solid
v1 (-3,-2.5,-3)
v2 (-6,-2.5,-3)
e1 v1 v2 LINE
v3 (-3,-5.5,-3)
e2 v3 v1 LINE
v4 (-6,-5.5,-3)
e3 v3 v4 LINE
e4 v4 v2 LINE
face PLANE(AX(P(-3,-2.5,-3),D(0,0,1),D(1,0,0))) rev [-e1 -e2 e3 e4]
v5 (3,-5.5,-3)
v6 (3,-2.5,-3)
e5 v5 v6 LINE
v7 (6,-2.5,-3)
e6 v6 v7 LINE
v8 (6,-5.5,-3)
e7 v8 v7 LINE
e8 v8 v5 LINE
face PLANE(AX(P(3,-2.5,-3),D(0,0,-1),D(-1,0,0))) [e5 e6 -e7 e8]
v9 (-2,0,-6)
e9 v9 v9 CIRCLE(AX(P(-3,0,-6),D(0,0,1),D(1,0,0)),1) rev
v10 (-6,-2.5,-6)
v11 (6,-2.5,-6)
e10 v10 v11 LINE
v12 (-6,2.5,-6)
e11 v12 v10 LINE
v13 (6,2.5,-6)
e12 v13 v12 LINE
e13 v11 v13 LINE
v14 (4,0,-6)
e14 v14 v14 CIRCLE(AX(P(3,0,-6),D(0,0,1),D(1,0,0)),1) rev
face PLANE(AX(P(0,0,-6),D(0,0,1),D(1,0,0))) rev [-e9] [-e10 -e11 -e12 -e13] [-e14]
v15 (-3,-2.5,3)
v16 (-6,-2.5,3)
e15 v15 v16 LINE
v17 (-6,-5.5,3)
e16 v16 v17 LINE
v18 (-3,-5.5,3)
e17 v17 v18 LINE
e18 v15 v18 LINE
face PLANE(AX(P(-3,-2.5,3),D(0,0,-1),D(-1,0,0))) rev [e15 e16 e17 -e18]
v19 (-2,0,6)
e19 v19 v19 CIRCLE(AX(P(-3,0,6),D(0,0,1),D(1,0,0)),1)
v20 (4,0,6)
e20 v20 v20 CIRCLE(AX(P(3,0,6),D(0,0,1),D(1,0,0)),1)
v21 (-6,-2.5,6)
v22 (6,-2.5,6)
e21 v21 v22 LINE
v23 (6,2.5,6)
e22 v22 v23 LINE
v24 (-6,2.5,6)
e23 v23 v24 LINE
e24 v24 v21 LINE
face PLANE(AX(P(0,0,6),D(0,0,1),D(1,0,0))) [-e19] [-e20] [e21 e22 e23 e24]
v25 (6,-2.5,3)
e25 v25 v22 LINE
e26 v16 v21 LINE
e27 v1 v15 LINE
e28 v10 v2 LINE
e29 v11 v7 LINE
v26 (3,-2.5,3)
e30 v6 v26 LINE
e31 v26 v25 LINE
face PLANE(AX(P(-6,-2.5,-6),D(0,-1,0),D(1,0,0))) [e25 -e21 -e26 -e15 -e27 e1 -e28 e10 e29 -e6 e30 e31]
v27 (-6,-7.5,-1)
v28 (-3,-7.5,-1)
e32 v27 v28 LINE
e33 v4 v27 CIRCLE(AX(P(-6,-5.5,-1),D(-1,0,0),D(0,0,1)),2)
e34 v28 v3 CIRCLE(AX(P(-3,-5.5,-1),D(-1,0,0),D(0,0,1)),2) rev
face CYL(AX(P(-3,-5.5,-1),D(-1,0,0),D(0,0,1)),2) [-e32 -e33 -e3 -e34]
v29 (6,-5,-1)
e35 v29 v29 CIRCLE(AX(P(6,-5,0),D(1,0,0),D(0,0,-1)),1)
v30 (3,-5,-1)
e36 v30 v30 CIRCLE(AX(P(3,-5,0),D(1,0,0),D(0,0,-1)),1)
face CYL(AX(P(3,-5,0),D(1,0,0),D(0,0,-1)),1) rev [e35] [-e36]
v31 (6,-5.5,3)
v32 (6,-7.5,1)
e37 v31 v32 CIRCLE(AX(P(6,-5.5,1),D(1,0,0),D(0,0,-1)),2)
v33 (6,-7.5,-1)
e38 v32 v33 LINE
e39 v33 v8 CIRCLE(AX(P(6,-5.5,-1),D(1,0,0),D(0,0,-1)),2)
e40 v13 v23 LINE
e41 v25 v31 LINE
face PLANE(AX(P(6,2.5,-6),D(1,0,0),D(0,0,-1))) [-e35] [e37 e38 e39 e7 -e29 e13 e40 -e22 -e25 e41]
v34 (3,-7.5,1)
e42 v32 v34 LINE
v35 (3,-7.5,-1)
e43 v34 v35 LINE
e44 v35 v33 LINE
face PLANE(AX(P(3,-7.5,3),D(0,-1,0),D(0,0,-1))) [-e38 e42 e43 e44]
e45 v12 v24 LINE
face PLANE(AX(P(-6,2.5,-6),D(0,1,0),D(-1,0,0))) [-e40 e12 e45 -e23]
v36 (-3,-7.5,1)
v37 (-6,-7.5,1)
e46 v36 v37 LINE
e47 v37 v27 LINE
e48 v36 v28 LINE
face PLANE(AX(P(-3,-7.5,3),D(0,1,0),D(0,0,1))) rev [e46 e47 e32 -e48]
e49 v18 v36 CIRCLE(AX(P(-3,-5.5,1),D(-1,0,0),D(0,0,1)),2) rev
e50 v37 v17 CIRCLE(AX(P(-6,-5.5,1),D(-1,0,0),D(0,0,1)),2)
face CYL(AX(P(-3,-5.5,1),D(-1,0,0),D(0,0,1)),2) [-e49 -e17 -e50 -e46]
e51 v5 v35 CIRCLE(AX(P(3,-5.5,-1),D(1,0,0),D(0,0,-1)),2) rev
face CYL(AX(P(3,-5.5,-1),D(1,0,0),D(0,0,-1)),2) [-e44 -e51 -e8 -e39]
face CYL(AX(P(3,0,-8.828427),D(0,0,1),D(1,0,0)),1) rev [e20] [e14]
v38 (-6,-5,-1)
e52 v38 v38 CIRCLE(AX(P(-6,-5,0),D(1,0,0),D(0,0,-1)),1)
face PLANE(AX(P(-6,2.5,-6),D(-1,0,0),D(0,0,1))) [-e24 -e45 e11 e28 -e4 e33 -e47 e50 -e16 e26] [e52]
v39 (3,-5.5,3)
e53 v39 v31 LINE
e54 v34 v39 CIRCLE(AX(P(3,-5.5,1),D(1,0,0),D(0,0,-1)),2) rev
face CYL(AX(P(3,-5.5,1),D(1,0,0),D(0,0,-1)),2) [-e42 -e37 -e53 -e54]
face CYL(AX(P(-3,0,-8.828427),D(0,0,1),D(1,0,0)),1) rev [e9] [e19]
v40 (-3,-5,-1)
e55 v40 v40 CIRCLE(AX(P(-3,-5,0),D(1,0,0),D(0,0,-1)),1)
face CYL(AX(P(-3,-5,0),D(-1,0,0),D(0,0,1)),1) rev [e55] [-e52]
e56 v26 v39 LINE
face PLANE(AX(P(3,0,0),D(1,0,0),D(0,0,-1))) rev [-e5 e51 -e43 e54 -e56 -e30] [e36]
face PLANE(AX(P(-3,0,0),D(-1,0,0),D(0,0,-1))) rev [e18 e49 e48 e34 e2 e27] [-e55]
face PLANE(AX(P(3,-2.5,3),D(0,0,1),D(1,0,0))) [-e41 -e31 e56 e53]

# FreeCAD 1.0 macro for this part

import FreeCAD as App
import Part
import Sketcher
from FreeCAD import Vector
Q = App.Units.Quantity


def edges_at(feature, points):
    """Names of the edges that pass closest to the given points."""
    edges = feature.Shape.Edges
    near = lambda p: min(range(len(edges)), key=lambda i: edges[i].distToShape(Part.Vertex(*p))[0])
    return sorted({f"Edge{near(p) + 1}" for p in points})


def add_polygon(sketch, points):
    """Adds a closed chain of lines whose ends are joined by coincident constraints."""
    first, n = sketch.GeometryCount, len(points)
    for a, b in zip(points, points[1:] + points[:1]):
        sketch.addGeometry(Part.LineSegment(App.Vector(*a, 0), App.Vector(*b, 0)), False)
    for i in range(n):
        sketch.addConstraint(Sketcher.Constraint("Coincident", first + i, 2, first + (i + 1) % n, 1))

doc = App.newDocument("Part")
body = doc.addObject("PartDesign::Body", "Body")

# Sketch on XY plane
sketch1 = body.newObject("Sketcher::SketchObject", "Sketch")
sketch1.AttachmentSupport = (doc.getObject("XY_Plane"), [""])
sketch1.MapMode = "FlatFace"
add_polygon(sketch1, [(-6, 2), (-6, -2), (6, -2), (6, 2)])  # lines 0-3
sketch1.addConstraint(Sketcher.Constraint("Vertical", 0))
sketch1.addConstraint(Sketcher.Constraint("Horizontal", 1))
sketch1.addConstraint(Sketcher.Constraint("Vertical", 2))
sketch1.addConstraint(Sketcher.Constraint("Horizontal", 3))
sketch1.addConstraint(Sketcher.Constraint("Symmetric", 0, 2, 2, 2, -1, 1))
sketch1.addConstraint(Sketcher.Constraint("DistanceX", 1, 1, 1, 2, Q("12 mm")))
sketch1.addConstraint(Sketcher.Constraint("DistanceY", 0, 2, 0, 1, Q("5 mm")))
pad1 = body.newObject("PartDesign::Pad", "Pad")
pad1.Profile = sketch1
pad1.Type = "TwoLengths"
pad1.Length = 6
pad1.Length2 = 6

# Sketch on XY plane
sketch2 = body.newObject("Sketcher::SketchObject", "Sketch001")
sketch2.AttachmentSupport = (doc.getObject("XY_Plane"), [""])
sketch2.MapMode = "FlatFace"
sketch2.AttachmentOffset = App.Placement(Vector(0, 0, 6), App.Rotation())
sketch2.addGeometry(Part.Circle(Vector(-3, 0, 0), Vector(0, 0, 1), 1), False)
sketch2.addGeometry(Part.Circle(Vector(3, 0, 0), Vector(0, 0, 1), 1), False)
sketch2.addConstraint(Sketcher.Constraint("Equal", 0, 1))
sketch2.addConstraint(Sketcher.Constraint("Symmetric", 0, 3, 1, 3, -1, 1))
sketch2.addConstraint(Sketcher.Constraint("PointOnObject", 0, 3, -1))
sketch2.addConstraint(Sketcher.Constraint("Diameter", 0, Q("2 mm")))
sketch2.addConstraint(Sketcher.Constraint("DistanceX", 0, 3, -1, 1, Q("3 mm")))
pocket1 = body.newObject("PartDesign::Pocket", "Pocket")
pocket1.Profile = sketch2
pocket1.Length = 12

# Sketch on YZ plane
sketch3 = body.newObject("Sketcher::SketchObject", "Sketch002")
sketch3.AttachmentSupport = (doc.getObject("YZ_Plane"), [""])
sketch3.MapMode = "FlatFace"
sketch3.AttachmentOffset = App.Placement(Vector(0, 0, 6), App.Rotation())
add_polygon(sketch3, [(-2.5, 3), (-7.5, 3), (-7.5, -3), (-2.5, -3)])  # lines 0-3
sketch3.addGeometry(Part.Circle(Vector(-5, 0, 0), Vector(0, 0, 1), 1), False)  # 4
sketch3.addConstraint(Sketcher.Constraint("Horizontal", 0))
sketch3.addConstraint(Sketcher.Constraint("Vertical", 1))
sketch3.addConstraint(Sketcher.Constraint("Horizontal", 2))
sketch3.addConstraint(Sketcher.Constraint("Vertical", 3))
sketch3.addConstraint(Sketcher.Constraint("PointOnObject", 4, 3, -1))
sketch3.addConstraint(Sketcher.Constraint("Diameter", 4, Q("2 mm")))
sketch3.addConstraint(Sketcher.Constraint("DistanceX", 0, 2, 0, 1, Q("5 mm")))
sketch3.addConstraint(Sketcher.Constraint("DistanceY", 1, 2, 1, 1, Q("6 mm")))
sketch3.addConstraint(Sketcher.Constraint("DistanceX", 4, 3, -1, 1, Q("5 mm")))
sketch3.addConstraint(Sketcher.Constraint("DistanceY", -1, 1, 0, 2, Q("3 mm")))
sketch3.addConstraint(Sketcher.Constraint("DistanceX", 0, 2, -1, 1, Q("7.5 mm")))
pad2 = body.newObject("PartDesign::Pad", "Pad001")
pad2.Profile = sketch3
pad2.Length = 3
pad2.Reversed = True
doc.recompute()

fillet = body.newObject("PartDesign::Fillet", "Fillet")
fillet.Base = (pad2, edges_at(pad2, [(4.5, -7.5, 3), (4.5, -7.5, -3)]))
fillet.Radius = 2
doc.recompute()

mirrored = body.newObject("PartDesign::Mirrored", "Mirrored")
mirrored.Originals = [pad2]
mirrored.MirrorPlane = (doc.getObject("YZ_Plane"), [""])
body.Tip = mirrored
doc.recompute()

fillet2 = body.newObject("PartDesign::Fillet", "Fillet001")
fillet2.Base = (mirrored, edges_at(mirrored, [(-4.5, -7.5, 3), (-4.5, -7.5, -3)]))
fillet2.Radius = 2

doc.recompute()
